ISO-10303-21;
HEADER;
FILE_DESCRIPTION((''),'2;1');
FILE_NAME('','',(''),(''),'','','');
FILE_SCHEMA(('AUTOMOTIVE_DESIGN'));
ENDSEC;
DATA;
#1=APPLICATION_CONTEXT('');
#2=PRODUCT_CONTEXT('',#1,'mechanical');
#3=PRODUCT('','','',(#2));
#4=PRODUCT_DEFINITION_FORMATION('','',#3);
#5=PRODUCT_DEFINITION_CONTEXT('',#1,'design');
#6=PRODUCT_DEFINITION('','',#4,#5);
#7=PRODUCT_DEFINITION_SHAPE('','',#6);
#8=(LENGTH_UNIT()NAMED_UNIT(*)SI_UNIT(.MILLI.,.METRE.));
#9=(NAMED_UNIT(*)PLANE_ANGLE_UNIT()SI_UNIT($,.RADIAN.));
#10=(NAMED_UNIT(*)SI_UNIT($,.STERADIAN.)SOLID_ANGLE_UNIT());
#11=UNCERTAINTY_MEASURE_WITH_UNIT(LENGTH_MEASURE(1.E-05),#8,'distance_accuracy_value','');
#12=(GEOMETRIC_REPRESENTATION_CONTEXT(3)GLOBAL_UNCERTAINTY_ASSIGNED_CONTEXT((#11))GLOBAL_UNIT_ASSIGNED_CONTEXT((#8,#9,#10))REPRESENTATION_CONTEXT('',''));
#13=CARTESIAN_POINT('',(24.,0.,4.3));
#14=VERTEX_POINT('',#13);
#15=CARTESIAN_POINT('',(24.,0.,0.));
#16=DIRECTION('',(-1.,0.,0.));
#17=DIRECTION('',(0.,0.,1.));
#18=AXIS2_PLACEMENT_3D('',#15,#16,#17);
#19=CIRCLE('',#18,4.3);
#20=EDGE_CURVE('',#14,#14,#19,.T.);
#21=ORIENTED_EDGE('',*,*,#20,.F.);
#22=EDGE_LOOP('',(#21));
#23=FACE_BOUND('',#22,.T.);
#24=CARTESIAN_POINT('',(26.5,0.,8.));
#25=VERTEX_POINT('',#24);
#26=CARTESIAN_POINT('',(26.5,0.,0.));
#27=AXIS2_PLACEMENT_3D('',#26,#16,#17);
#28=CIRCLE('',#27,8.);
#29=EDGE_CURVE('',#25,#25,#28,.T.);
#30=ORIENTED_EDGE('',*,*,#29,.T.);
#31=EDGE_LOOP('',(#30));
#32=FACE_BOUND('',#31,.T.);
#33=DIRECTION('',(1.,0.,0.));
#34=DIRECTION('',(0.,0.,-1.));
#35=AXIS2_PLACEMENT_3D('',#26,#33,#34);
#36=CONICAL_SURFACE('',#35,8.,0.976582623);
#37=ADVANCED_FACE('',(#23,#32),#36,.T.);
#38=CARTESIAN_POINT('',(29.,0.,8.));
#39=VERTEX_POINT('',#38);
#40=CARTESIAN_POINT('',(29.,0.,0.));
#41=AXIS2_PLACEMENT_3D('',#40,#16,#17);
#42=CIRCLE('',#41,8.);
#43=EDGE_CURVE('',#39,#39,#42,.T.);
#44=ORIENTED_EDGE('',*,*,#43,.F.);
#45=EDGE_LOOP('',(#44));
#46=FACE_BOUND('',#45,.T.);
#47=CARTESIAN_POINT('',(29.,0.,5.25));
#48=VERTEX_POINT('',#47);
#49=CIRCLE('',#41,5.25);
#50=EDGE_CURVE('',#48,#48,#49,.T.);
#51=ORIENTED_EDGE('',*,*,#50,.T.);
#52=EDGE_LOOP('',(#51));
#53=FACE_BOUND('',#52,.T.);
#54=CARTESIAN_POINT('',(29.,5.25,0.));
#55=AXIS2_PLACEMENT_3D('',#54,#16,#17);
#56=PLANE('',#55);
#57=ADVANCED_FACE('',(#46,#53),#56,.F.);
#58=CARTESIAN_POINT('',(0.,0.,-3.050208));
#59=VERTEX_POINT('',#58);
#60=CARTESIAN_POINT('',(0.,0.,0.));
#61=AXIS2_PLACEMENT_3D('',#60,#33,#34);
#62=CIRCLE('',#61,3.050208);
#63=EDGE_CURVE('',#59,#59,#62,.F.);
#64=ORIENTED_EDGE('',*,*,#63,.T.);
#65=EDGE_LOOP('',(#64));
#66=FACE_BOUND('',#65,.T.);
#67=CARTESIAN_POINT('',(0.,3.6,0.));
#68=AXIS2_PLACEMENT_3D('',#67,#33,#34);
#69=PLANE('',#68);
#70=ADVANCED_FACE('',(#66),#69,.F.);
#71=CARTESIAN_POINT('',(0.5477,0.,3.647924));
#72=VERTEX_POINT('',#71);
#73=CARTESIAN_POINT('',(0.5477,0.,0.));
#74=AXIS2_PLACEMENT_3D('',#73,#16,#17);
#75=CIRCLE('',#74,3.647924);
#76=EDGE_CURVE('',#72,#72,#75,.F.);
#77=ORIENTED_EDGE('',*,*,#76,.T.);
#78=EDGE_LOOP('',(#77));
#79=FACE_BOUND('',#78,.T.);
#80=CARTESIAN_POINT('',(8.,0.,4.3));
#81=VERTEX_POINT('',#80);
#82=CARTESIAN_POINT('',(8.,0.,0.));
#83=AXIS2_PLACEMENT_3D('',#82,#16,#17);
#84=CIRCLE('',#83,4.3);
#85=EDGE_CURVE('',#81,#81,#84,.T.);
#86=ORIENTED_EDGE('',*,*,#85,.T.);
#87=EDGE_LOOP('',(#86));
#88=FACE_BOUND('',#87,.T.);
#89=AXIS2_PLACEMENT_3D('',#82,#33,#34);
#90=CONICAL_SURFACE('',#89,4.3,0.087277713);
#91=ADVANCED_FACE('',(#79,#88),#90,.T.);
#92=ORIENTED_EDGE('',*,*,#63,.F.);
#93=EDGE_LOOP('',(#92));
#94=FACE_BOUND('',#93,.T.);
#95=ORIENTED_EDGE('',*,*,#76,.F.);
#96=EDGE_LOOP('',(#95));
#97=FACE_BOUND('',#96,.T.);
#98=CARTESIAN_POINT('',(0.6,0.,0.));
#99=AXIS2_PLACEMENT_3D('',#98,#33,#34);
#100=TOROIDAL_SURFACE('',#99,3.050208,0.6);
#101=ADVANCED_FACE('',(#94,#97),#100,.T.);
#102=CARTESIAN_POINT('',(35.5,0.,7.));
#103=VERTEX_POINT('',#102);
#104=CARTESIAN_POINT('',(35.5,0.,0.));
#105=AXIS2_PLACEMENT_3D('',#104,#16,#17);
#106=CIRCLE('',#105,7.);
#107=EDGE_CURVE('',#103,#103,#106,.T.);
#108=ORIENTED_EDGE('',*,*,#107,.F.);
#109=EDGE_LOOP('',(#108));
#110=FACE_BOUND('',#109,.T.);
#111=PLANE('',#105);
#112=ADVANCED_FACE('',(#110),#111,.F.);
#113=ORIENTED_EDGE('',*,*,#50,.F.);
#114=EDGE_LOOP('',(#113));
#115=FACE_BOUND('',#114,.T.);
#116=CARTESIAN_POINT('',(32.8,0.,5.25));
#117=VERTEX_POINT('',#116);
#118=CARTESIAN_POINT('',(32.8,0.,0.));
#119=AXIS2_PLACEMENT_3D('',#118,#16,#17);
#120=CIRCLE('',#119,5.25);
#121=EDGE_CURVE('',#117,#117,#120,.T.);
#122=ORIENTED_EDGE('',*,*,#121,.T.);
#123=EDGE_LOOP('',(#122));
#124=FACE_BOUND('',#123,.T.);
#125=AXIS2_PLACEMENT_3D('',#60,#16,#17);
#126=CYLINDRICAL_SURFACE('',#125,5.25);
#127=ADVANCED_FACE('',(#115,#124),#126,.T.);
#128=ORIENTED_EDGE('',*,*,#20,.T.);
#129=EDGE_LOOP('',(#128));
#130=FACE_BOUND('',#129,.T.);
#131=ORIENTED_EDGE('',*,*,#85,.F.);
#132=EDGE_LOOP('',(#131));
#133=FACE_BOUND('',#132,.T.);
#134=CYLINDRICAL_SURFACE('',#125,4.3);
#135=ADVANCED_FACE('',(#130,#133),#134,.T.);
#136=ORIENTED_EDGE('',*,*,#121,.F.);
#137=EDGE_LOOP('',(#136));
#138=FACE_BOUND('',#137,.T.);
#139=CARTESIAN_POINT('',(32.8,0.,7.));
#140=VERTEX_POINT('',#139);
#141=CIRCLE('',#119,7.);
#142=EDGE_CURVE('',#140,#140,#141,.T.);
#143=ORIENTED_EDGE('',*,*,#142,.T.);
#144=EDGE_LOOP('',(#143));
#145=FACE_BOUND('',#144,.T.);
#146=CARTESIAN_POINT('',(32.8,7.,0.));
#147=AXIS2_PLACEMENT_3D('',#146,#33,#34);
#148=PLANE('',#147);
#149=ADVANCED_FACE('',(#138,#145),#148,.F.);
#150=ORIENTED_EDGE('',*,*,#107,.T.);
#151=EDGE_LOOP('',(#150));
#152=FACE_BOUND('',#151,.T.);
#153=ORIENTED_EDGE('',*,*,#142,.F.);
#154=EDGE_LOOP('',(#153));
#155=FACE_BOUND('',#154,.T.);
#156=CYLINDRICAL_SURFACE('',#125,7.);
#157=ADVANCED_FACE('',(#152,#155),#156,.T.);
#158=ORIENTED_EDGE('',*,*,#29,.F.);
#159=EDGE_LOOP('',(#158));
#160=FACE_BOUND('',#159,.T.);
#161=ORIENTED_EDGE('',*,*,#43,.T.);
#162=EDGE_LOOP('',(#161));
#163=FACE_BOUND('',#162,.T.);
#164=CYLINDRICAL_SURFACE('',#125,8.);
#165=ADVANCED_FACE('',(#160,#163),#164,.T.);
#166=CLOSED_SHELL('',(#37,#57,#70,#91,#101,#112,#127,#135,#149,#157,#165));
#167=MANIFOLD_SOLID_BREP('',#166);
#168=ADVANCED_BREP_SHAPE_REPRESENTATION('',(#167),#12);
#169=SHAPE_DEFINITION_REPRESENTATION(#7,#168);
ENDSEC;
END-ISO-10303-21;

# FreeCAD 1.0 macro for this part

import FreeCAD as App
import Part
import Sketcher

V = App.Vector


def edges_at(feature, points):
    """Names of the edges that pass closest to the given points."""
    edges = feature.Shape.Edges
    near = lambda p: min(range(len(edges)), key=lambda i: edges[i].distToShape(Part.Vertex(*p))[0])
    return sorted({f"Edge{near(p) + 1}" for p in points})


def add_polygon(sketch, points):
    """Adds a closed chain of lines whose ends are joined by coincident constraints."""
    first, n = sketch.GeometryCount, len(points)
    for a, b in zip(points, points[1:] + points[:1]):
        sketch.addGeometry(Part.LineSegment(App.Vector(*a, 0), App.Vector(*b, 0)), False)
    for i in range(n):
        sketch.addConstraint(Sketcher.Constraint("Coincident", first + i, 2, first + (i + 1) % n, 1))

doc = App.newDocument("Part")
body = doc.addObject("PartDesign::Body", "Body")

# Sketch on XY plane
sketch1 = doc.addObject("Sketcher::SketchObject", "Sketch")
body.addObject(sketch1)
sketch1.AttachmentSupport = (doc.XY_Plane, [""])
sketch1.MapMode = "FlatFace"
add_polygon(sketch1, [(35.5, 0), (35.5, 7), (32.8, 7), (32.8, 5.2), (29, 5.2), (29, 8), (26.5, 8), (24, 4.3), (8, 4.3), (0, 3.6), (0, 0)])  # lines 0-10
sketch1.addConstraint([
    Sketcher.Constraint("Vertical", 0),
    Sketcher.Constraint("Horizontal", 1),
    Sketcher.Constraint("Vertical", 2),
    Sketcher.Constraint("Horizontal", 3),
    Sketcher.Constraint("Vertical", 4),
    Sketcher.Constraint("Horizontal", 5),
    Sketcher.Constraint("Horizontal", 7),
    Sketcher.Constraint("Vertical", 9),
    Sketcher.Constraint("Horizontal", 10),
    Sketcher.Constraint("Coincident", 9, 2, -1, 1),
    Sketcher.Constraint("DistanceX", 7, 2, 7, 1, 16.0),
    Sketcher.Constraint("DistanceY", 0, 1, 0, 2, 7.0),
    Sketcher.Constraint("DistanceX", 1, 2, 1, 1, 2.7),
    Sketcher.Constraint("DistanceX", 3, 2, 3, 1, 3.8),
    Sketcher.Constraint("DistanceX", 5, 2, 5, 1, 2.5),
    Sketcher.Constraint("DistanceX", 10, 1, 10, 2, 35.5),
    Sketcher.Constraint("DistanceY", 9, 2, 9, 1, 3.6),
    Sketcher.Constraint("DistanceY", -1, 1, 4, 2, 8.0),
    Sketcher.Constraint("DistanceX", -1, 1, 6, 2, 24.0),
    Sketcher.Constraint("DistanceY", 2, 2, 2, 1, 1.75),
    Sketcher.Constraint("DistanceY", -1, 1, 6, 2, 4.3),
])
revolution = doc.addObject("PartDesign::Revolution", "Revolution")
body.addObject(revolution)
revolution.Profile = sketch1
revolution.ReferenceAxis = (sketch1, ["H_Axis"])
revolution.Angle = 360
doc.recompute()

fillet = doc.addObject("PartDesign::Fillet", "Fillet")
body.addObject(fillet)
fillet.Base = (revolution, edges_at(revolution, [(0, 0, -3.6)]))
fillet.Radius = 0.6

doc.recompute()
